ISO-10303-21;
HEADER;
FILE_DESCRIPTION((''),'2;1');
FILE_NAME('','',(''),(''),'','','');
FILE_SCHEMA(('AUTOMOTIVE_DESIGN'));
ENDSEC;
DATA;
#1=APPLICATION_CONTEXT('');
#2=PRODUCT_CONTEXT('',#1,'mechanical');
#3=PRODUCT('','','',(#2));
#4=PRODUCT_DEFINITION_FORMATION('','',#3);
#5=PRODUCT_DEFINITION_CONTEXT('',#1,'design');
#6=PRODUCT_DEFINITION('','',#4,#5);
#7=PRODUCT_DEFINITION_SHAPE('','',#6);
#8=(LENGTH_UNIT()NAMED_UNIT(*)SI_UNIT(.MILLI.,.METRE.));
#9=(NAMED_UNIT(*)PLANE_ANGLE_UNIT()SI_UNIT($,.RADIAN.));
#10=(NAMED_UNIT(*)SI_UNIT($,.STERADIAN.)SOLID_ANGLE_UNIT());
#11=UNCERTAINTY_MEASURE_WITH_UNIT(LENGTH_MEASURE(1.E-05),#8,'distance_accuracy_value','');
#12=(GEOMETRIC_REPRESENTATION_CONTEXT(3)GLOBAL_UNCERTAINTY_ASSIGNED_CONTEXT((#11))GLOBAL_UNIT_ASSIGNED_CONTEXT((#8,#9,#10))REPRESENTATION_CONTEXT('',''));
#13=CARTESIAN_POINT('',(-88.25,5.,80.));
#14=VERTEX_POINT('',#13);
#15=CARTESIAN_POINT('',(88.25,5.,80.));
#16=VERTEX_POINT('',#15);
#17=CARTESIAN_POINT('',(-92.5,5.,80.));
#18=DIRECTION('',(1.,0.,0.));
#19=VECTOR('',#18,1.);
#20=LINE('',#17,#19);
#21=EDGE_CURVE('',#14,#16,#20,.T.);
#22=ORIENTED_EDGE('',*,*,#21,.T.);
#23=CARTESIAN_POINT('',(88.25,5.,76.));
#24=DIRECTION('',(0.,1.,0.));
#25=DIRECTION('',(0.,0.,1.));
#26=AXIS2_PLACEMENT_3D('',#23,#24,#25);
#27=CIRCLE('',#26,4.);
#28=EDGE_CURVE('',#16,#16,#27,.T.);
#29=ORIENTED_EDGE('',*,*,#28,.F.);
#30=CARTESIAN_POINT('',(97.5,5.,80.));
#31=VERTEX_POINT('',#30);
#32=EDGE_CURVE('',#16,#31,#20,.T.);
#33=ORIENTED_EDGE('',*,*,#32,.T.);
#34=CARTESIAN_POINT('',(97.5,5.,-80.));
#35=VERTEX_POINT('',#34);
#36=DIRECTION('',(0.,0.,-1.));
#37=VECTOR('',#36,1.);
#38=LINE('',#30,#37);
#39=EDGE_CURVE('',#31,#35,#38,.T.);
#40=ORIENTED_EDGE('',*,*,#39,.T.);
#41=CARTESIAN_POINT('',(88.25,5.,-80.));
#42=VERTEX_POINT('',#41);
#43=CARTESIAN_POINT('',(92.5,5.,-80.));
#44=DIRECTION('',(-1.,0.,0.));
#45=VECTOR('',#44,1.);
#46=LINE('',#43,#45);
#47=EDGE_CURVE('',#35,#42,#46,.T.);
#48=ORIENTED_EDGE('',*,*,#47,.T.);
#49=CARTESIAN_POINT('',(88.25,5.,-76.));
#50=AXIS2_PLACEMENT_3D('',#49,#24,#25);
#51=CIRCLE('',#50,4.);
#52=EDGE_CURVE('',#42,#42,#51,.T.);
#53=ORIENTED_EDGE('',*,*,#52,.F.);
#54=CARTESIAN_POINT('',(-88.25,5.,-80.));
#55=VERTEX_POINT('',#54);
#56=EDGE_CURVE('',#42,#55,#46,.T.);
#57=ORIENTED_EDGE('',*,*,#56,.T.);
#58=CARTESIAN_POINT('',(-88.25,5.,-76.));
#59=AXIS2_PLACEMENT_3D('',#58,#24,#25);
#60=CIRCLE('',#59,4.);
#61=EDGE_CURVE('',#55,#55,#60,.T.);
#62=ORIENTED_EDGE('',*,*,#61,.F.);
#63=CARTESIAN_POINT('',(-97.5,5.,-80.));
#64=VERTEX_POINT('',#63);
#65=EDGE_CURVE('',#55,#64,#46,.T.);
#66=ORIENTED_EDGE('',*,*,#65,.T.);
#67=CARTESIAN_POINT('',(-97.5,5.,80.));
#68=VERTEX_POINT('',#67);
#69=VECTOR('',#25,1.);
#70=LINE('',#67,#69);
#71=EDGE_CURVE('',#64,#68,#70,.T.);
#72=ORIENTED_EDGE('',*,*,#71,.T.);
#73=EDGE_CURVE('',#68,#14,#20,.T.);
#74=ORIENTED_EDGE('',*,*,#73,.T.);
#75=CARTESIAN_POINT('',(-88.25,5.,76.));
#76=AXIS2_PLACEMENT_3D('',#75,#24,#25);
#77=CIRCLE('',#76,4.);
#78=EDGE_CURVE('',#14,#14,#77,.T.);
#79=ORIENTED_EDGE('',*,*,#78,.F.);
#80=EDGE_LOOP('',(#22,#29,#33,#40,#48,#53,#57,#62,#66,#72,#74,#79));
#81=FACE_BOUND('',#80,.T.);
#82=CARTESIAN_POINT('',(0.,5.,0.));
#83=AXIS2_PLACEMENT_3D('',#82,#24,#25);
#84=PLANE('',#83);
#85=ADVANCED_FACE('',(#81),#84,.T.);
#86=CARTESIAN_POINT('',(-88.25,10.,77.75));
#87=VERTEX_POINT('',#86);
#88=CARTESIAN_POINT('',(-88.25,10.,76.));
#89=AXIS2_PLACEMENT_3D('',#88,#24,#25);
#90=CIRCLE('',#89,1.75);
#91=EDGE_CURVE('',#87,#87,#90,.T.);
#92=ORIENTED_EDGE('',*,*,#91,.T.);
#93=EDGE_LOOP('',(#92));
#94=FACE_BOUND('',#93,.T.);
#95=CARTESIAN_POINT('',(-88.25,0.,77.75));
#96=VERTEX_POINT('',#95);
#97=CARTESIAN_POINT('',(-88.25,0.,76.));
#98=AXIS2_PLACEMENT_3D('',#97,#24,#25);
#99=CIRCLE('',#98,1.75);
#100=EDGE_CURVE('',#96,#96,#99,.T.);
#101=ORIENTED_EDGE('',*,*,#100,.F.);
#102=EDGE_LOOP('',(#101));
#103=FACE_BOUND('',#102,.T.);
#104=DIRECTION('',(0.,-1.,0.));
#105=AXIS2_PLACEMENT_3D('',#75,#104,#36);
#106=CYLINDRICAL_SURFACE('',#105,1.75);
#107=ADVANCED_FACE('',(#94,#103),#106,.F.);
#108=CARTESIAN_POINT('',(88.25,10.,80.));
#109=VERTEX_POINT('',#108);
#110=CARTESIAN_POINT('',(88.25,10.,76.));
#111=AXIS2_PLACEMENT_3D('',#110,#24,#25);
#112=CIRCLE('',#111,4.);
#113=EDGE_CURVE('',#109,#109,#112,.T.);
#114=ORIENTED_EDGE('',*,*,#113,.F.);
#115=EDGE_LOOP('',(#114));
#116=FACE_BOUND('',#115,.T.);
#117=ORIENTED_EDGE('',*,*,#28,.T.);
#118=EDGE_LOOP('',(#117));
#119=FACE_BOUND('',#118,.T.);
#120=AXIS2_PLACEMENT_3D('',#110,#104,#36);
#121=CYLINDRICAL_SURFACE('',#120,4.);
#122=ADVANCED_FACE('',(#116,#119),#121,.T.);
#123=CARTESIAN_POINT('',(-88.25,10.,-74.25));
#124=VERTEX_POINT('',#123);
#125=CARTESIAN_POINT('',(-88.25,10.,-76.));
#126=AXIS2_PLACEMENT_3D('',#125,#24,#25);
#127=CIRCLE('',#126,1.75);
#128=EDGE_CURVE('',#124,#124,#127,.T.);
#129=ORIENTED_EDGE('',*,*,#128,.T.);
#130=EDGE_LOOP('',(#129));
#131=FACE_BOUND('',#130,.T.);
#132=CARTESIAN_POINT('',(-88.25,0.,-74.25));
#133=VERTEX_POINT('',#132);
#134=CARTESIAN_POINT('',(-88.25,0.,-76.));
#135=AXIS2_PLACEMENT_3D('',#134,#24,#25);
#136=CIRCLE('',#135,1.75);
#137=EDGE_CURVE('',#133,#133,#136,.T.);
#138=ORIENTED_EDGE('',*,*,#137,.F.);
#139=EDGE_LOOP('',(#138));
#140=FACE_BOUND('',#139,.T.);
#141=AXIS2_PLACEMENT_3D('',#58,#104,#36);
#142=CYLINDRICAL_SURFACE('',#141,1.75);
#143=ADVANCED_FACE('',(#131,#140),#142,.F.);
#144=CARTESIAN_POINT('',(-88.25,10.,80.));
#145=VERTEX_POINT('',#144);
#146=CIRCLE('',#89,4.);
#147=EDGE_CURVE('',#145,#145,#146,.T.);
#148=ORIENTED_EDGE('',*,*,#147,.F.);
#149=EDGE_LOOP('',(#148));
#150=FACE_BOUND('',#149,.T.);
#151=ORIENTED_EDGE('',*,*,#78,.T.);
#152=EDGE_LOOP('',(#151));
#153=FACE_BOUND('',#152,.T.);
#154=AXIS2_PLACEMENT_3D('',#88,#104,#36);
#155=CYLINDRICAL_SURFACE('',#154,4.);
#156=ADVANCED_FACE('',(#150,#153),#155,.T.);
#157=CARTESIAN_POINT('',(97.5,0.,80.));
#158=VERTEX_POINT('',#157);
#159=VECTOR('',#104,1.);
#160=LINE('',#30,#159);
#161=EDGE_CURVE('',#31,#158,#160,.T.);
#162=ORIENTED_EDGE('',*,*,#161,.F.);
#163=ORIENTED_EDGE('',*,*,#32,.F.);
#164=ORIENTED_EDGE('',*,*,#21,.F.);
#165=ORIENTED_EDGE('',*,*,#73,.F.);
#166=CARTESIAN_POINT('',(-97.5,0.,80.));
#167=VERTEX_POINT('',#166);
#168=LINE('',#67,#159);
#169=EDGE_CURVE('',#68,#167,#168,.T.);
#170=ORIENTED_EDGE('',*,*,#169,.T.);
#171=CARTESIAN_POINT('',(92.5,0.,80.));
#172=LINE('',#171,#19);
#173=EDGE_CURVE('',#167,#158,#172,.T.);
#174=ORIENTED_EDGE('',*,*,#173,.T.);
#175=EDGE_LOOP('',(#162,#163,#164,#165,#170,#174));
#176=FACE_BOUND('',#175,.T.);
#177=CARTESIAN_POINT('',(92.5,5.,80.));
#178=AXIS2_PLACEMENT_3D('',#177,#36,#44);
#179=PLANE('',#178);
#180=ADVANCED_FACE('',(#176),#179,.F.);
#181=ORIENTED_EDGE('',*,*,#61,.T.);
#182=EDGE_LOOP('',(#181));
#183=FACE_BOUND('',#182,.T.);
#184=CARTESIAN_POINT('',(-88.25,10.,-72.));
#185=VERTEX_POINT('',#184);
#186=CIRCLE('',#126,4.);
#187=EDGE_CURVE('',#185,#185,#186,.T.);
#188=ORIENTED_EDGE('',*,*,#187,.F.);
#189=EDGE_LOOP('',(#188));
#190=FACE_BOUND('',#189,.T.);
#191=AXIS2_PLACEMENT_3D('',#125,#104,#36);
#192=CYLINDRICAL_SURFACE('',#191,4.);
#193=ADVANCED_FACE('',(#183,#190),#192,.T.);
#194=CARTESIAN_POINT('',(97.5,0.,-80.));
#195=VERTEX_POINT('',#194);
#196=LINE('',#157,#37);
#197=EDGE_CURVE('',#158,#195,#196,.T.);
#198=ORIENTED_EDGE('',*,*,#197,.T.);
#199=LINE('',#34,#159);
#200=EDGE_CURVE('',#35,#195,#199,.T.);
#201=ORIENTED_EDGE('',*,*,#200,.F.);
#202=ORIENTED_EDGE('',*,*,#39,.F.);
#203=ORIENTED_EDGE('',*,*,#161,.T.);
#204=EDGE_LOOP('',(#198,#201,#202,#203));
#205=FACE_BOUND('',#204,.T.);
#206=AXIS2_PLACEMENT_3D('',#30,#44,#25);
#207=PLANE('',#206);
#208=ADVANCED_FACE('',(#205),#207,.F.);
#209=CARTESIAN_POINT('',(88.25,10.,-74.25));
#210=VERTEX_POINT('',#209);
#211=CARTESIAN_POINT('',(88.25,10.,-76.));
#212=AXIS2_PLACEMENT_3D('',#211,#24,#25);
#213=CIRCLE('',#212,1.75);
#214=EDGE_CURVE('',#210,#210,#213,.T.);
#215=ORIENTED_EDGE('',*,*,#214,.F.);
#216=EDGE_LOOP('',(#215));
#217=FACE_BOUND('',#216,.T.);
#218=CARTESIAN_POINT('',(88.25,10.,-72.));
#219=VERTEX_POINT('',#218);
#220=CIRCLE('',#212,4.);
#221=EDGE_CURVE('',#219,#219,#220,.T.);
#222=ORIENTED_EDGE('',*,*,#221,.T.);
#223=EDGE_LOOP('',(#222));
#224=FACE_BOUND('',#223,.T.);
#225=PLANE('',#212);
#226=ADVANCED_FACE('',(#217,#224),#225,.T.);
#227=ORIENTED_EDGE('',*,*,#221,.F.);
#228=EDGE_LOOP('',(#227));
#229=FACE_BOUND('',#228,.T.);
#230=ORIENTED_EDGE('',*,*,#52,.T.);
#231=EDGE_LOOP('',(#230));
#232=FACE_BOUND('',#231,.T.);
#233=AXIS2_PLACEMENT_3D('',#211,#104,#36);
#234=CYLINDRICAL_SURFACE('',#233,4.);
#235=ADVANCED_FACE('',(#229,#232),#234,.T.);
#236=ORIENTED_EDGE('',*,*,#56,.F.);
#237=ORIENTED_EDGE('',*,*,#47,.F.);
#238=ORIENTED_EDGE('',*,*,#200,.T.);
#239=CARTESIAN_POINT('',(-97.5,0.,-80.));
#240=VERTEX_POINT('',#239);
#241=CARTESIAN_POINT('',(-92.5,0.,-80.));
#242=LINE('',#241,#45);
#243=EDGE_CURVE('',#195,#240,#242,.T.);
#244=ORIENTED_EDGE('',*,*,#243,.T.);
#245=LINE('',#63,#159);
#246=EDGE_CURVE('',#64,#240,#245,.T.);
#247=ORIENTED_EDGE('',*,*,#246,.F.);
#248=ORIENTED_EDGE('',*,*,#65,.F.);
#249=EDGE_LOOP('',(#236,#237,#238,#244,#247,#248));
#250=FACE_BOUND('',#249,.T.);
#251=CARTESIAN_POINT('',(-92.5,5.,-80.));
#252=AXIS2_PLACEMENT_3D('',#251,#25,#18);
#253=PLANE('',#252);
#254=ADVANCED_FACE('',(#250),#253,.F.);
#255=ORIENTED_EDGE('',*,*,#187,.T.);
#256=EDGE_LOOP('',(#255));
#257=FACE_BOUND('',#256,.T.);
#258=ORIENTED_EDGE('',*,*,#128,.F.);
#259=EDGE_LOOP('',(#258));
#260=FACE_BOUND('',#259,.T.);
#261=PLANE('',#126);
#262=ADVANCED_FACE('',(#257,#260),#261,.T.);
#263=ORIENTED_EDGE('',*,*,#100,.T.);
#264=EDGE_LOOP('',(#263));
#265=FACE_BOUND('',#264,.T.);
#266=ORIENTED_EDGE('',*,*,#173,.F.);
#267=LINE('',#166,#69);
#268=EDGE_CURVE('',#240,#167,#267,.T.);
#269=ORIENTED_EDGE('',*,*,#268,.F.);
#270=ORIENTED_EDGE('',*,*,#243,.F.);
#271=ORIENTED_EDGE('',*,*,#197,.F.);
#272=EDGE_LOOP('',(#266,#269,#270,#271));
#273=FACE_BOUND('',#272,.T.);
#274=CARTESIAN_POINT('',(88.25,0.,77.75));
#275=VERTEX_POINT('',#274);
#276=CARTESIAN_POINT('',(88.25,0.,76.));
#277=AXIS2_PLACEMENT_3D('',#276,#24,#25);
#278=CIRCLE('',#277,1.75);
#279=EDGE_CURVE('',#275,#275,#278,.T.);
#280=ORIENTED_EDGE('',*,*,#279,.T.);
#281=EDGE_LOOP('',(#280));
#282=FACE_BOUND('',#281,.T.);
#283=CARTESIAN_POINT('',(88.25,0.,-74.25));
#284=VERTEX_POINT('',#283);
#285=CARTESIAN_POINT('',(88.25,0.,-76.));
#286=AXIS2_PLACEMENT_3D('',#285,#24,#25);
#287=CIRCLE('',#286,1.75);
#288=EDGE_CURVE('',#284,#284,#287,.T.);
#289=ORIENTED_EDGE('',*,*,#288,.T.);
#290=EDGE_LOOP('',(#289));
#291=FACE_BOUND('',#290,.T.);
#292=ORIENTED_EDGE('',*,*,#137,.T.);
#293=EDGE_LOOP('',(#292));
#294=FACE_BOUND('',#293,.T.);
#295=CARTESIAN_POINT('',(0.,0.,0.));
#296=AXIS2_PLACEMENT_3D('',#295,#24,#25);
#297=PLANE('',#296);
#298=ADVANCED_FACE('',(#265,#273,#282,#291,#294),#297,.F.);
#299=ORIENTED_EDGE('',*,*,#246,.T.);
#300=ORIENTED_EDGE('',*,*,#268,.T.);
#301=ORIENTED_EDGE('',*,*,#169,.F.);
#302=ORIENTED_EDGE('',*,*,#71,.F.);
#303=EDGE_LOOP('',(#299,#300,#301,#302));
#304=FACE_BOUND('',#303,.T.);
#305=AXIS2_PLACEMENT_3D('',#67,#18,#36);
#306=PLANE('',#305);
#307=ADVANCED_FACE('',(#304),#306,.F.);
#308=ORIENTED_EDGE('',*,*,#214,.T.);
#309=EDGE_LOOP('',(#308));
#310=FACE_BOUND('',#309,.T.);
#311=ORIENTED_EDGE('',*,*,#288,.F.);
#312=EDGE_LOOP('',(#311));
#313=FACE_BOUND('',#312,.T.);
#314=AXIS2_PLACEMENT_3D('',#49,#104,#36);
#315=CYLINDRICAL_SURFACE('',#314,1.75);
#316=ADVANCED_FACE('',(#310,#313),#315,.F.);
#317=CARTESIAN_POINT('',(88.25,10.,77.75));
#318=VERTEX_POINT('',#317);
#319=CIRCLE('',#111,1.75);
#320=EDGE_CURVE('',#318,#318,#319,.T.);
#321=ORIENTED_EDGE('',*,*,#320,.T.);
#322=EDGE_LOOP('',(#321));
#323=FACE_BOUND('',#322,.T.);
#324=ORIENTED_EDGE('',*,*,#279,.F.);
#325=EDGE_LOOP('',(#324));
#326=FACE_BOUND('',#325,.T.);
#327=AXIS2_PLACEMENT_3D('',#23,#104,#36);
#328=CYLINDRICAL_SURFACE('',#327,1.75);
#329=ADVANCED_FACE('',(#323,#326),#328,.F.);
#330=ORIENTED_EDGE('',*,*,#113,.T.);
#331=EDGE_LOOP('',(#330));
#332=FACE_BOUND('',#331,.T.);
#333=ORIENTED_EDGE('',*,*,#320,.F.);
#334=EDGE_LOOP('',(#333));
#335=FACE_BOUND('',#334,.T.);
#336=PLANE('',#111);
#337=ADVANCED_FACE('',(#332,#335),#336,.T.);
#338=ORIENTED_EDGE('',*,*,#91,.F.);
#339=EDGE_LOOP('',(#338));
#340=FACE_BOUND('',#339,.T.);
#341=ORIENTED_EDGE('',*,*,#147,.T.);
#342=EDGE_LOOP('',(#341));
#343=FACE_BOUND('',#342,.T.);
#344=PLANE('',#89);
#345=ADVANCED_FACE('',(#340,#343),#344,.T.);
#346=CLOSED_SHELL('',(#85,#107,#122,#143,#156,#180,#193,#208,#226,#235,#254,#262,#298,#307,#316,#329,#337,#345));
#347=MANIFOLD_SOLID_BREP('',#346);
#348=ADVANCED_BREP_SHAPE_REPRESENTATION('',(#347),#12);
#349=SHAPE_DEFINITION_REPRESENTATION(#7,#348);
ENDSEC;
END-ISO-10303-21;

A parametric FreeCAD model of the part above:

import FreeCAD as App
import Part
import Sketcher
Q = App.Units.Quantity

doc = App.newDocument("Part")
body = doc.addObject("PartDesign::Body", "Body")

# Sketch on XZ plane
sketch1 = doc.addObject("Sketcher::SketchObject", "Sketch")
body.addObject(sketch1)
sketch1.AttachmentSupport = (doc.XZ_Plane, [""])
sketch1.MapMode = "FlatFace"
sketch1.addGeometry(Part.LineSegment(App.Vector(97.5, 80, 0), App.Vector(97.5, -80, 0)), False)
sketch1.addGeometry(Part.LineSegment(App.Vector(97.5, -80, 0), App.Vector(-97.5, -80, 0)), False)
sketch1.addGeometry(Part.LineSegment(App.Vector(-97.5, -80, 0), App.Vector(-97.5, 80, 0)), False)
sketch1.addGeometry(Part.LineSegment(App.Vector(-97.5, 80, 0), App.Vector(97.5, 80, 0)), False)
sketch1.addGeometry(Part.Circle(App.Vector(-88.2, 76, 0), App.Vector(0, 0, 1), 1.8), False)
sketch1.addGeometry(Part.Circle(App.Vector(88.2, 76, 0), App.Vector(0, 0, 1), 1.8), False)
sketch1.addGeometry(Part.Circle(App.Vector(-88.2, -76, 0), App.Vector(0, 0, 1), 1.8), False)
sketch1.addGeometry(Part.Circle(App.Vector(88.2, -76, 0), App.Vector(0, 0, 1), 1.8), False)
sketch1.addConstraint(Sketcher.Constraint("Coincident", 0, 2, 1, 1))
sketch1.addConstraint(Sketcher.Constraint("Coincident", 1, 2, 2, 1))
sketch1.addConstraint(Sketcher.Constraint("Coincident", 2, 2, 3, 1))
sketch1.addConstraint(Sketcher.Constraint("Coincident", 3, 2, 0, 1))
sketch1.addConstraint(Sketcher.Constraint("Vertical", 0))
sketch1.addConstraint(Sketcher.Constraint("Horizontal", 1))
sketch1.addConstraint(Sketcher.Constraint("Vertical", 2))
sketch1.addConstraint(Sketcher.Constraint("Horizontal", 3))
sketch1.addConstraint(Sketcher.Constraint("Equal", 4, 5))
sketch1.addConstraint(Sketcher.Constraint("Equal", 5, 6))
sketch1.addConstraint(Sketcher.Constraint("Equal", 6, 7))
sketch1.addConstraint(Sketcher.Constraint("Symmetric", 5, 3, 6, 3, -1, 1))
sketch1.addConstraint(Sketcher.Constraint("Symmetric", 4, 3, 7, 3, -1, 1))
sketch1.addConstraint(Sketcher.Constraint("Symmetric", 0, 2, 2, 2, -1, 1))
sketch1.addConstraint(Sketcher.Constraint("Symmetric", 4, 3, 5, 3, -2))
sketch1.addConstraint(Sketcher.Constraint("Diameter", 4, Q("3.5 mm")))
sketch1.addConstraint(Sketcher.Constraint("DistanceX", 1, 2, 1, 1, Q("195 mm")))
sketch1.addConstraint(Sketcher.Constraint("DistanceY", 0, 2, 0, 1, Q("160 mm")))
sketch1.addConstraint(Sketcher.Constraint("DistanceY", -1, 1, 4, 3, Q("76 mm")))
sketch1.addConstraint(Sketcher.Constraint("DistanceX", 4, 3, 5, 3, Q("176.5 mm")))
pad1 = doc.addObject("PartDesign::Pad", "Pad")
body.addObject(pad1)
pad1.Profile = sketch1
pad1.Length = 5
pad1.Reversed = True

# Sketch on XZ plane
sketch2 = doc.addObject("Sketcher::SketchObject", "Sketch001")
body.addObject(sketch2)
sketch2.AttachmentSupport = (doc.XZ_Plane, [""])
sketch2.MapMode = "FlatFace"
sketch2.AttachmentOffset = App.Placement(App.Vector(0, 0, -5), App.Rotation())
sketch2.addGeometry(Part.Circle(App.Vector(-88.2, -76, 0), App.Vector(0, 0, 1), 4), False)
sketch2.addGeometry(Part.Circle(App.Vector(-88.2, -76, 0), App.Vector(0, 0, 1), 1.8), False)
sketch2.addGeometry(Part.Circle(App.Vector(88.2, -76, 0), App.Vector(0, 0, 1), 4), False)
sketch2.addGeometry(Part.Circle(App.Vector(88.2, -76, 0), App.Vector(0, 0, 1), 1.8), False)
sketch2.addGeometry(Part.Circle(App.Vector(88.2, 76, 0), App.Vector(0, 0, 1), 4), False)
sketch2.addGeometry(Part.Circle(App.Vector(88.2, 76, 0), App.Vector(0, 0, 1), 1.8), False)
sketch2.addGeometry(Part.Circle(App.Vector(-88.2, 76, 0), App.Vector(0, 0, 1), 4), False)
sketch2.addGeometry(Part.Circle(App.Vector(-88.2, 76, 0), App.Vector(0, 0, 1), 1.8), False)
sketch2.addConstraint(Sketcher.Constraint("Coincident", 1, 3, 0, 3))
sketch2.addConstraint(Sketcher.Constraint("Coincident", 3, 3, 2, 3))
sketch2.addConstraint(Sketcher.Constraint("Coincident", 5, 3, 4, 3))
sketch2.addConstraint(Sketcher.Constraint("Coincident", 7, 3, 6, 3))
sketch2.addConstraint(Sketcher.Constraint("Equal", 0, 2))
sketch2.addConstraint(Sketcher.Constraint("Equal", 1, 3))
sketch2.addConstraint(Sketcher.Constraint("Equal", 2, 4))
sketch2.addConstraint(Sketcher.Constraint("Equal", 3, 5))
sketch2.addConstraint(Sketcher.Constraint("Equal", 4, 6))
sketch2.addConstraint(Sketcher.Constraint("Equal", 5, 7))
sketch2.addConstraint(Sketcher.Constraint("Symmetric", 0, 3, 4, 3, -1, 1))
sketch2.addConstraint(Sketcher.Constraint("Symmetric", 2, 3, 6, 3, -1, 1))
sketch2.addConstraint(Sketcher.Constraint("Symmetric", 0, 3, 2, 3, -2))
sketch2.addConstraint(Sketcher.Constraint("Diameter", 0, Q("8 mm")))
sketch2.addConstraint(Sketcher.Constraint("Diameter", 1, Q("3.5 mm")))
sketch2.addConstraint(Sketcher.Constraint("DistanceY", 0, 3, -1, 1, Q("76 mm")))
sketch2.addConstraint(Sketcher.Constraint("DistanceX", 0, 3, 2, 3, Q("176.5 mm")))
pad2 = doc.addObject("PartDesign::Pad", "Pad001")
body.addObject(pad2)
pad2.Profile = sketch2
pad2.Length = 5
pad2.Reversed = True

doc.recompute()
